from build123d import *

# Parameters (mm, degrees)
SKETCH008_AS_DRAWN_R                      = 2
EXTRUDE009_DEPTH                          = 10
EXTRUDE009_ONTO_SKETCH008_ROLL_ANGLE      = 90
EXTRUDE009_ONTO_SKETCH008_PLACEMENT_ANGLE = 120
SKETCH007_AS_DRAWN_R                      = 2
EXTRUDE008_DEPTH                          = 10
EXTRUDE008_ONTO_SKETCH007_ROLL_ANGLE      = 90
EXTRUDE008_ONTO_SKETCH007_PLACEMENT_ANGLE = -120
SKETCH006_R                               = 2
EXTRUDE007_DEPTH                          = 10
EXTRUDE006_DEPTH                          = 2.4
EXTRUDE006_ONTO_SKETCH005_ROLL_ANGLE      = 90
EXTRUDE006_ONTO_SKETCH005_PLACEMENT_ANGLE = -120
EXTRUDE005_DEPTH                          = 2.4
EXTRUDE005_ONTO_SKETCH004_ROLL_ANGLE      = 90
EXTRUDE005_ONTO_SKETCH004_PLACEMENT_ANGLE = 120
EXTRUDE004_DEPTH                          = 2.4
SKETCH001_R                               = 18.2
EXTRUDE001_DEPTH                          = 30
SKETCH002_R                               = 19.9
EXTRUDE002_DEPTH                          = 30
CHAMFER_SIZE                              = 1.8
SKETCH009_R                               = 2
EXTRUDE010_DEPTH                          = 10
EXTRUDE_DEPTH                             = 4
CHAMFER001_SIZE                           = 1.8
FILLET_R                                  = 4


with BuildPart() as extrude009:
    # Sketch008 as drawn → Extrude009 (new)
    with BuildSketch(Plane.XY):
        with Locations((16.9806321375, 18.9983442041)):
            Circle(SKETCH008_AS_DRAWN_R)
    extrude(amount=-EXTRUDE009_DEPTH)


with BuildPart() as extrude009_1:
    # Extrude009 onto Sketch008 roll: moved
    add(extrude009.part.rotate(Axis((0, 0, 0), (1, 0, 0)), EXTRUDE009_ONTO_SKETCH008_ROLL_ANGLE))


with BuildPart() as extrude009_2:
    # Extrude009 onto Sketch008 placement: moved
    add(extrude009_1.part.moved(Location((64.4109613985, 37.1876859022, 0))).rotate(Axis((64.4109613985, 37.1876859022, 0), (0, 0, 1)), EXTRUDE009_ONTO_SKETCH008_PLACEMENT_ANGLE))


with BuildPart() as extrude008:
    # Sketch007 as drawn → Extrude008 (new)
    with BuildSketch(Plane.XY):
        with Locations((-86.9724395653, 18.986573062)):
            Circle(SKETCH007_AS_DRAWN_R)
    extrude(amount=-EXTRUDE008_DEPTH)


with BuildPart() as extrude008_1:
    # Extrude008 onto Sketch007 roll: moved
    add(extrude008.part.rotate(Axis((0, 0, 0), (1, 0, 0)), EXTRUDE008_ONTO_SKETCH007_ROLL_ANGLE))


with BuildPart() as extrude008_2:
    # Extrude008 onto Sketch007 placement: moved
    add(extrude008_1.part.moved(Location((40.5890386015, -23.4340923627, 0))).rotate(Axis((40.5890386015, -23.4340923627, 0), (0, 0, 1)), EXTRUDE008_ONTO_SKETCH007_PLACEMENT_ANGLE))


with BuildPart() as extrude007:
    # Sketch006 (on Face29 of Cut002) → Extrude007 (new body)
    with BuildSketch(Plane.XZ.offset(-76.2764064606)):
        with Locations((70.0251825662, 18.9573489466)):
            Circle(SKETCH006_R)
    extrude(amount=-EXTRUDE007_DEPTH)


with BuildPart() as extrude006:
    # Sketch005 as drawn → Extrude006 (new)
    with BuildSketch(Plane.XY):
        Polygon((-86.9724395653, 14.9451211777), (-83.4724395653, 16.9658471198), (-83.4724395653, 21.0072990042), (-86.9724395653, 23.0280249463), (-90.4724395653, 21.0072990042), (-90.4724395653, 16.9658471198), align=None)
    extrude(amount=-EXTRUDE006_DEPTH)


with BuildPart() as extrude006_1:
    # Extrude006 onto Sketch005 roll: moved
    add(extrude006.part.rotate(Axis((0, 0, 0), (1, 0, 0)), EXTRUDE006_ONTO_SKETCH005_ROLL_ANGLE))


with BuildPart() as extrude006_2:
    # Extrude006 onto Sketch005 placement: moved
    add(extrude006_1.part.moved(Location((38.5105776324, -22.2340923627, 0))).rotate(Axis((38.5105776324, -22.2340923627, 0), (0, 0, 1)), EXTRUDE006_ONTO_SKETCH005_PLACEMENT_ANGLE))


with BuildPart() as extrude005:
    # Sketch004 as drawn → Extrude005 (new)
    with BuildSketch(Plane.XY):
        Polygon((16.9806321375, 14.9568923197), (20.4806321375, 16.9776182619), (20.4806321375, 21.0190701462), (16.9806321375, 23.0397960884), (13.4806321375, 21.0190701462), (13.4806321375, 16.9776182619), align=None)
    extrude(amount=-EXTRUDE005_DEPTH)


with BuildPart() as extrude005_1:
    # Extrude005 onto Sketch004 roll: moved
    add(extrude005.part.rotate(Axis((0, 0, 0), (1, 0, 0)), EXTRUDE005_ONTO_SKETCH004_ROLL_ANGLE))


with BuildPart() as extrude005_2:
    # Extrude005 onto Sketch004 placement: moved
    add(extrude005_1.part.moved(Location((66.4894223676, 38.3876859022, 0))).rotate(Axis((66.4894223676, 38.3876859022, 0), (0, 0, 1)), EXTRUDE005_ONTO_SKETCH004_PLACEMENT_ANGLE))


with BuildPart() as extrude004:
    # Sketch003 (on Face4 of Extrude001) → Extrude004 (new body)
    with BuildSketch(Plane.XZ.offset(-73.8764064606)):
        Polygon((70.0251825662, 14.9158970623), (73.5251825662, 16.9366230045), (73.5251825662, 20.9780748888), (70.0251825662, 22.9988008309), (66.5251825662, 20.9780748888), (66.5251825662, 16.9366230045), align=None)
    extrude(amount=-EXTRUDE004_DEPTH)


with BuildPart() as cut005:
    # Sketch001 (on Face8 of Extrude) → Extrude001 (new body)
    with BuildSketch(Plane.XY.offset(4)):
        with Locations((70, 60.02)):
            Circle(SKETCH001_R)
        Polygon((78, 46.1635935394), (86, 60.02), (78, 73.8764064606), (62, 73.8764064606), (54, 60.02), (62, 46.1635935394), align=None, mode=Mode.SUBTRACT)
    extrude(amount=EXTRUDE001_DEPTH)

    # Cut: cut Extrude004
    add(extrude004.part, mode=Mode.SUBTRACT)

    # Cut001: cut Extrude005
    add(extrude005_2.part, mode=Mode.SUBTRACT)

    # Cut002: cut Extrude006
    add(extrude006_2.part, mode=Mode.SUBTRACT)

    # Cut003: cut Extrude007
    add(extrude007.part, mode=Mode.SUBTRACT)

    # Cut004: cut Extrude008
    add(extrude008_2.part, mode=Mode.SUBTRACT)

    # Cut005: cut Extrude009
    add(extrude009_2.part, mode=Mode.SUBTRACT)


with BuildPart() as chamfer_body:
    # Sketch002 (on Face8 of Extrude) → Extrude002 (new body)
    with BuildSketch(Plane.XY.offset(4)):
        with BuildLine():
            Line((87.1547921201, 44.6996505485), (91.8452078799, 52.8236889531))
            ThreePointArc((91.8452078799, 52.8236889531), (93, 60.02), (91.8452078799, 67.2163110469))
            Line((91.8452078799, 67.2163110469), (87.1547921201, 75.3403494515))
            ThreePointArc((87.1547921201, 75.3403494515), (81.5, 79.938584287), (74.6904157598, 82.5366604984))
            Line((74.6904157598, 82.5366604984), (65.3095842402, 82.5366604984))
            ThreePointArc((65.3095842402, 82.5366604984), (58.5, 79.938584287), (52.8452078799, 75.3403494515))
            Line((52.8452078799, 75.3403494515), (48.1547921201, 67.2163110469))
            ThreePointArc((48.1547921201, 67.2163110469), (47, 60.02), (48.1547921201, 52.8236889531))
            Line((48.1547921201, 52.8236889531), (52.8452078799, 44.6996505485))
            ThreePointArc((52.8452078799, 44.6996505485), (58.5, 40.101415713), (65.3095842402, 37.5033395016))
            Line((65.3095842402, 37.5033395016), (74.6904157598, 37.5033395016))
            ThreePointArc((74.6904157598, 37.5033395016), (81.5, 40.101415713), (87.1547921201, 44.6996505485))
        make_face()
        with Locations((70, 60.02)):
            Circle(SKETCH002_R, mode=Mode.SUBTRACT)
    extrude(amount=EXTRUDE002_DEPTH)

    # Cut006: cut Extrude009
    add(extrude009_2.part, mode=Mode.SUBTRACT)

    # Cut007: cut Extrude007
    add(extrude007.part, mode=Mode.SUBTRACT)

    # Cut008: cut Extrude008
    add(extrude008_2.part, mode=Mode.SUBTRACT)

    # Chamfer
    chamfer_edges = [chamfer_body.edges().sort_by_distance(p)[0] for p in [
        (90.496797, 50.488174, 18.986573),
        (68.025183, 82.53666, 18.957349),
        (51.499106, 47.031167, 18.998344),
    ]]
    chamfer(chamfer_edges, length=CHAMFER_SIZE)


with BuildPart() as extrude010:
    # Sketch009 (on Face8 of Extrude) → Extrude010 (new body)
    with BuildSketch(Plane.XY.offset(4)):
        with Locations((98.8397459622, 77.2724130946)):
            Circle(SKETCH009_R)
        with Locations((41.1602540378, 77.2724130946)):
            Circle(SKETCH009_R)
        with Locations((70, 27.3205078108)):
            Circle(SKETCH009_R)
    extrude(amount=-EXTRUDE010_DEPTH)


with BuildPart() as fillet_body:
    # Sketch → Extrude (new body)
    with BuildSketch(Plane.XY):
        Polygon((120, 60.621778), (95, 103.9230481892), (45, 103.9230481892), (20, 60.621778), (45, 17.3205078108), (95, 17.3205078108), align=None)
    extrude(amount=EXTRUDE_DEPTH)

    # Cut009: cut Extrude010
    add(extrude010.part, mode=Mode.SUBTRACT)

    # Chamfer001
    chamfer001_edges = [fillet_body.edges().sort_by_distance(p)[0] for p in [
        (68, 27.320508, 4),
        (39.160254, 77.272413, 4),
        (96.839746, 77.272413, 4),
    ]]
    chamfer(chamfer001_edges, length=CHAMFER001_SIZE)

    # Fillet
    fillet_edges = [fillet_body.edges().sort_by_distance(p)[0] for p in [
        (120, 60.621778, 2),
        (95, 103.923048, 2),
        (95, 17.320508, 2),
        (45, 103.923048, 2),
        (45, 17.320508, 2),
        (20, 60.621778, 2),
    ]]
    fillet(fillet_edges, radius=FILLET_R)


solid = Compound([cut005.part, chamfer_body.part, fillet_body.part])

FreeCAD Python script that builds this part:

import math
import FreeCAD as App
import Part
import Sketcher

V = App.Vector
Q = App.Units.Quantity


def edges_at(feature, points):
    """Names of the edges that pass closest to the given points."""
    edges = feature.Shape.Edges
    near = lambda p: min(range(len(edges)), key=lambda i: edges[i].distToShape(Part.Vertex(*p))[0])
    return sorted({f"Edge{near(p) + 1}" for p in points})


def add_polygon(sketch, points):
    """Adds a closed chain of lines whose ends are joined by coincident constraints."""
    first, n = sketch.GeometryCount, len(points)
    for a, b in zip(points, points[1:] + points[:1]):
        sketch.addGeometry(Part.LineSegment(App.Vector(*a, 0), App.Vector(*b, 0)), False)
    for i in range(n):
        sketch.addConstraint(Sketcher.Constraint("Coincident", first + i, 2, first + (i + 1) % n, 1))

doc = App.newDocument("Part")
body = doc.addObject("PartDesign::Body", "Body")

sketch1 = body.newObject("Sketcher::SketchObject", "Sketch")
sketch1.AttachmentSupport = (doc.getObject("XY_Plane"), [""])
sketch1.MapMode = "FlatFace"
sketch1.addGeometry(Part.Circle(V(17, 19, 0), V(0, 0, 1), 2), False)
sketch1.addConstraint([
    Sketcher.Constraint("Diameter", 0, 4.0),
    Sketcher.Constraint("DistanceX", -1, 1, 0, 3, 16.980632),
    Sketcher.Constraint("DistanceY", -1, 1, 0, 3, 18.998344),
])
pad1 = body.newObject("PartDesign::Pad", "Pad")
pad1.Profile = sketch1
pad1.Length = 10
pad1.Reversed = True
body2 = doc.addObject("PartDesign::Body", "Body001")
doc.recompute()

body.Placement = App.Placement(V(0, 0, 0), App.Rotation(V(1, 0, 0), 90))
boolean = body2.newObject("PartDesign::Boolean", "Boolean")
boolean.Type = "Fuse"
boolean.addObjects([body])
body3 = doc.addObject("PartDesign::Body", "Body002")
doc.recompute()

body2.Placement = App.Placement(V(64.410961, 37.187686, 0), App.Rotation(V(0, 0, 1), 120))
boolean2 = body3.newObject("PartDesign::Boolean", "Boolean001")
boolean2.Type = "Fuse"
boolean2.addObjects([body2])
body4 = doc.addObject("PartDesign::Body", "Body003")

sketch2 = body4.newObject("Sketcher::SketchObject", "Sketch001")
sketch2.AttachmentSupport = (doc.getObject("XY_Plane003"), [""])
sketch2.MapMode = "FlatFace"
sketch2.addGeometry(Part.Circle(V(-87, 19, 0), V(0, 0, 1), 2), False)
sketch2.addConstraint([
    Sketcher.Constraint("Diameter", 0, 4.0),
    Sketcher.Constraint("DistanceX", 0, 3, -1, 1, 86.97244),
    Sketcher.Constraint("DistanceY", -1, 1, 0, 3, 18.986573),
])
pad2 = body4.newObject("PartDesign::Pad", "Pad001")
pad2.Profile = sketch2
pad2.Length = 10
pad2.Reversed = True
body5 = doc.addObject("PartDesign::Body", "Body004")
doc.recompute()

body4.Placement = App.Placement(V(0, 0, 0), App.Rotation(V(1, 0, 0), 90))
boolean3 = body5.newObject("PartDesign::Boolean", "Boolean002")
boolean3.Type = "Fuse"
boolean3.addObjects([body4])
body6 = doc.addObject("PartDesign::Body", "Body005")
doc.recompute()

body5.Placement = App.Placement(V(40.589039, -23.434092, 0), App.Rotation(V(0, 0, 1), 240))
boolean4 = body6.newObject("PartDesign::Boolean", "Boolean003")
boolean4.Type = "Fuse"
boolean4.addObjects([body5])
body7 = doc.addObject("PartDesign::Body", "Body006")

sketch3 = body7.newObject("Sketcher::SketchObject", "Sketch002")
sketch3.AttachmentSupport = (doc.getObject("XZ_Plane006"), [""])
sketch3.MapMode = "FlatFace"
sketch3.AttachmentOffset = App.Placement(V(0, 0, -76.276406), App.Rotation())
sketch3.addGeometry(Part.Circle(V(70, 19, 0), V(0, 0, 1), 2), False)
sketch3.addConstraint([
    Sketcher.Constraint("Diameter", 0, 4.0),
    Sketcher.Constraint("DistanceY", -1, 1, 0, 3, 18.957349),
    Sketcher.Constraint("DistanceX", -1, 1, 0, 3, 70.025183),
])
pad3 = body7.newObject("PartDesign::Pad", "Pad002")
pad3.Profile = sketch3
pad3.Length = 10
pad3.Reversed = True
body8 = doc.addObject("PartDesign::Body", "Body007")

sketch4 = body8.newObject("Sketcher::SketchObject", "Sketch003")
sketch4.AttachmentSupport = (doc.getObject("XY_Plane007"), [""])
sketch4.MapMode = "FlatFace"
add_polygon(sketch4, [(-87, 14.9), (-83.5, 17), (-83.5, 21), (-87, 23), (-90.5, 21), (-90.5, 17)])
sketch4.addConstraint([
    Sketcher.Constraint("Vertical", 1),
    Sketcher.Constraint("Vertical", 4),
    Sketcher.Constraint("Parallel", 0, 3),
    Sketcher.Constraint("Parallel", 2, 5),
    Sketcher.Constraint("Horizontal", 1, 2, 3, 2),
    Sketcher.Constraint("Horizontal", 0, 2, 4, 2),
    Sketcher.Constraint("Vertical", 2, 2, 5, 2),
    Sketcher.Constraint("Angle", 0, Q("30 deg")),
    Sketcher.Constraint("DistanceX", 3, 2, 1, 2, 7.0),
    Sketcher.Constraint("DistanceY", 1, 1, 1, 2, 4.041452),
    Sketcher.Constraint("DistanceY", -1, 1, 1, 2, 21.007299),
    Sketcher.Constraint("DistanceX", 0, 2, -1, 1, 83.47244),
])
pad4 = body8.newObject("PartDesign::Pad", "Pad003")
pad4.Profile = sketch4
pad4.Length = 2.4
pad4.Reversed = True
body9 = doc.addObject("PartDesign::Body", "Body008")
doc.recompute()

body8.Placement = App.Placement(V(0, 0, 0), App.Rotation(V(1, 0, 0), 90))
boolean5 = body9.newObject("PartDesign::Boolean", "Boolean004")
boolean5.Type = "Fuse"
boolean5.addObjects([body8])
body10 = doc.addObject("PartDesign::Body", "Body009")
doc.recompute()

body9.Placement = App.Placement(V(38.510578, -22.234092, 0), App.Rotation(V(0, 0, 1), 240))
boolean6 = body10.newObject("PartDesign::Boolean", "Boolean005")
boolean6.Type = "Fuse"
boolean6.addObjects([body9])
body11 = doc.addObject("PartDesign::Body", "Body010")

sketch5 = body11.newObject("Sketcher::SketchObject", "Sketch004")
sketch5.AttachmentSupport = (doc.getObject("XY_Plane010"), [""])
sketch5.MapMode = "FlatFace"
add_polygon(sketch5, [(17, 15), (20.5, 17), (20.5, 21), (17, 23), (13.5, 21), (13.5, 17)])
sketch5.addConstraint([
    Sketcher.Constraint("Vertical", 1),
    Sketcher.Constraint("Vertical", 4),
    Sketcher.Constraint("Parallel", 0, 3),
    Sketcher.Constraint("Parallel", 2, 5),
    Sketcher.Constraint("Horizontal", 1, 2, 3, 2),
    Sketcher.Constraint("Horizontal", 0, 2, 4, 2),
    Sketcher.Constraint("Vertical", 2, 2, 5, 2),
    Sketcher.Constraint("Angle", 0, Q("30 deg")),
    Sketcher.Constraint("DistanceX", 3, 2, 1, 2, 7.0),
    Sketcher.Constraint("DistanceY", 1, 1, 1, 2, 4.041452),
    Sketcher.Constraint("DistanceY", -1, 1, 0, 2, 16.977618),
    Sketcher.Constraint("DistanceX", -1, 1, 0, 2, 20.480632),
])
pad5 = body11.newObject("PartDesign::Pad", "Pad004")
pad5.Profile = sketch5
pad5.Length = 2.4
pad5.Reversed = True
body12 = doc.addObject("PartDesign::Body", "Body011")
doc.recompute()

body11.Placement = App.Placement(V(0, 0, 0), App.Rotation(V(1, 0, 0), 90))
boolean7 = body12.newObject("PartDesign::Boolean", "Boolean006")
boolean7.Type = "Fuse"
boolean7.addObjects([body11])
body13 = doc.addObject("PartDesign::Body", "Body012")
doc.recompute()

body12.Placement = App.Placement(V(66.489422, 38.387686, 0), App.Rotation(V(0, 0, 1), 120))
boolean8 = body13.newObject("PartDesign::Boolean", "Boolean007")
boolean8.Type = "Fuse"
boolean8.addObjects([body12])
body14 = doc.addObject("PartDesign::Body", "Body013")

sketch6 = body14.newObject("Sketcher::SketchObject", "Sketch005")
sketch6.AttachmentSupport = (doc.getObject("XZ_Plane013"), [""])
sketch6.MapMode = "FlatFace"
sketch6.AttachmentOffset = App.Placement(V(0, 0, -73.876406), App.Rotation())
add_polygon(sketch6, [(70, 14.9), (73.5, 16.9), (73.5, 21), (70, 23), (66.5, 21), (66.5, 16.9)])
sketch6.addConstraint([
    Sketcher.Constraint("Vertical", 1),
    Sketcher.Constraint("Vertical", 4),
    Sketcher.Constraint("Parallel", 0, 3),
    Sketcher.Constraint("Parallel", 2, 5),
    Sketcher.Constraint("Horizontal", 1, 2, 3, 2),
    Sketcher.Constraint("Horizontal", 0, 2, 4, 2),
    Sketcher.Constraint("Vertical", 2, 2, 5, 2),
    Sketcher.Constraint("Angle", 0, Q("30 deg")),
    Sketcher.Constraint("DistanceX", 3, 2, 1, 2, 7.0),
    Sketcher.Constraint("DistanceY", 1, 1, 1, 2, 4.041452),
    Sketcher.Constraint("DistanceY", -1, 1, 2, 2, 22.998801),
    Sketcher.Constraint("DistanceX", -1, 1, 0, 2, 73.525183),
])
pad6 = body14.newObject("PartDesign::Pad", "Pad005")
pad6.Profile = sketch6
pad6.Length = 2.4
pad6.Reversed = True
body15 = doc.addObject("PartDesign::Body", "Body014")

sketch7 = body15.newObject("Sketcher::SketchObject", "Sketch006")
sketch7.AttachmentSupport = (doc.getObject("XY_Plane014"), [""])
sketch7.MapMode = "FlatFace"
sketch7.AttachmentOffset = App.Placement(V(0, 0, 4), App.Rotation())
sketch7.addGeometry(Part.Circle(V(70, 60, 0), V(0, 0, 1), 18), False)
add_polygon(sketch7, [(86, 60), (78, 46), (62, 46), (54, 60), (62, 74), (78, 74)])
sketch7.addConstraint([
    Sketcher.Constraint("Horizontal", 2),
    Sketcher.Constraint("Horizontal", 5),
    Sketcher.Constraint("Parallel", 1, 4),
    Sketcher.Constraint("Parallel", 3, 6),
    Sketcher.Constraint("Horizontal", 0, 3, 3, 2),
    Sketcher.Constraint("Horizontal", 3, 2, 6, 2),
    Sketcher.Constraint("Vertical", 2, 2, 4, 2),
    Sketcher.Constraint("Vertical", 1, 2, 5, 2),
    Sketcher.Constraint("Diameter", 0, 36.4),
    Sketcher.Constraint("DistanceX", 2, 2, 2, 1, 16.0),
    Sketcher.Constraint("Angle", 1, Q("-120 deg")),
    Sketcher.Constraint("Distance", 1, 16.0),
    Sketcher.Constraint("DistanceX", -1, 1, 0, 3, 70.0),
    Sketcher.Constraint("DistanceX", -1, 1, 1, 2, 78.0),
    Sketcher.Constraint("DistanceY", -1, 1, 0, 3, 60.02),
])
pad7 = body15.newObject("PartDesign::Pad", "Pad006")
pad7.Profile = sketch7
pad7.Length = 30
doc.recompute()

boolean9 = body15.newObject("PartDesign::Boolean", "Boolean008")
boolean9.Type = "Cut"
boolean9.addObjects([body14])
doc.recompute()

boolean10 = body15.newObject("PartDesign::Boolean", "Boolean009")
boolean10.Type = "Cut"
boolean10.addObjects([body13])
doc.recompute()

boolean11 = body15.newObject("PartDesign::Boolean", "Boolean010")
boolean11.Type = "Cut"
boolean11.addObjects([body10])
doc.recompute()

body16 = doc.addObject("PartDesign::Body", "Body015")
body16.BaseFeature = body7
boolean12 = body15.newObject("PartDesign::Boolean", "Boolean011")
boolean12.Type = "Cut"
boolean12.addObjects([body16])
doc.recompute()

body17 = doc.addObject("PartDesign::Body", "Body016")
body17.BaseFeature = body6
boolean13 = body15.newObject("PartDesign::Boolean", "Boolean012")
boolean13.Type = "Cut"
boolean13.addObjects([body17])
doc.recompute()

body18 = doc.addObject("PartDesign::Body", "Body017")
body18.BaseFeature = body3
boolean14 = body15.newObject("PartDesign::Boolean", "Boolean013")
boolean14.Type = "Cut"
boolean14.addObjects([body18])
doc.recompute()
body19 = doc.addObject("PartDesign::Body", "Body018")

sketch8 = body19.newObject("Sketcher::SketchObject", "Sketch007")
sketch8.AttachmentSupport = (doc.getObject("XY_Plane018"), [""])
sketch8.MapMode = "FlatFace"
sketch8.AttachmentOffset = App.Placement(V(0, 0, 4), App.Rotation())
sketch8.addGeometry([
    Part.LineSegment(V(87, 45, 0), V(92, 53, 0)),
    Part.ArcOfCircle(Part.Circle(V(70, 60, 0), V(0, 0, 1), 23), math.radians(-18), math.radians(18)),
    Part.LineSegment(V(92, 67, 0), V(87, 75, 0)),
    Part.ArcOfCircle(Part.Circle(V(70, 60, 0), V(0, 0, 1), 23), math.radians(42), math.radians(78)),
    Part.LineSegment(V(75, 83, 0), V(65, 83, 0)),
    Part.ArcOfCircle(Part.Circle(V(70, 60, 0), V(0, 0, 1), 23), math.radians(102), math.radians(138)),
    Part.LineSegment(V(53, 75, 0), V(48, 67, 0)),
    Part.ArcOfCircle(Part.Circle(V(70, 60, 0), V(0, 0, 1), 23), math.radians(162), math.radians(198)),
    Part.LineSegment(V(48, 53, 0), V(53, 45, 0)),
    Part.ArcOfCircle(Part.Circle(V(70, 60, 0), V(0, 0, 1), 23), math.radians(-138), math.radians(-102)),
    Part.LineSegment(V(65, 38, 0), V(75, 38, 0)),
    Part.ArcOfCircle(Part.Circle(V(70, 60, 0), V(0, 0, 1), 23), math.radians(-78), math.radians(-42)),
    Part.Circle(V(70, 60, 0), V(0, 0, 1), 20),
], False)
sketch8.addConstraint([
    Sketcher.Constraint("Coincident", 0, 2, 1, 1),
    Sketcher.Constraint("Coincident", 1, 2, 2, 1),
    Sketcher.Constraint("Coincident", 2, 2, 3, 1),
    Sketcher.Constraint("Coincident", 3, 2, 4, 1),
    Sketcher.Constraint("Coincident", 4, 2, 5, 1),
    Sketcher.Constraint("Coincident", 5, 2, 6, 1),
    Sketcher.Constraint("Coincident", 6, 2, 7, 1),
    Sketcher.Constraint("Coincident", 7, 2, 8, 1),
    Sketcher.Constraint("Coincident", 8, 2, 9, 1),
    Sketcher.Constraint("Coincident", 9, 2, 10, 1),
    Sketcher.Constraint("Coincident", 10, 2, 11, 1),
    Sketcher.Constraint("Coincident", 11, 2, 0, 1),
    Sketcher.Constraint("Horizontal", 4),
    Sketcher.Constraint("Horizontal", 10),
    Sketcher.Constraint("Coincident", 3, 3, 1, 3),
    Sketcher.Constraint("Coincident", 5, 3, 1, 3),
    Sketcher.Constraint("Coincident", 7, 3, 1, 3),
    Sketcher.Constraint("Coincident", 9, 3, 1, 3),
    Sketcher.Constraint("Coincident", 11, 3, 1, 3),
    Sketcher.Constraint("Coincident", 12, 3, 1, 3),
    Sketcher.Constraint("Equal", 1, 3),
    Sketcher.Constraint("Equal", 3, 5),
    Sketcher.Constraint("Equal", 5, 7),
    Sketcher.Constraint("Equal", 7, 9),
    Sketcher.Constraint("Equal", 9, 11),
    Sketcher.Constraint("Parallel", 0, 6),
    Sketcher.Constraint("Parallel", 2, 8),
    Sketcher.Constraint("Horizontal", 2, 2, 5, 2),
    Sketcher.Constraint("Horizontal", 1, 2, 6, 2),
    Sketcher.Constraint("Horizontal", 0, 2, 7, 2),
    Sketcher.Constraint("Vertical", 0, 2, 1, 2),
    Sketcher.Constraint("Vertical", 4, 2, 9, 2),
    Sketcher.Constraint("Radius", 1, 23.0),
    Sketcher.Constraint("Diameter", 12, 39.8),
    Sketcher.Constraint("Angle", 0, Q("60 deg")),
    Sketcher.Constraint("DistanceX", -1, 1, 1, 3, 70.0),
    Sketcher.Constraint("DistanceY", -1, 1, 1, 3, 60.02),
    Sketcher.Constraint("DistanceX", 4, 2, 4, 1, 9.380832),
    Sketcher.Constraint("Distance", 0, 9.380832),
])
pad8 = body19.newObject("PartDesign::Pad", "Pad007")
pad8.Profile = sketch8
pad8.Length = 30
doc.recompute()

boolean15 = body19.newObject("PartDesign::Boolean", "Boolean014")
boolean15.Type = "Cut"
boolean15.addObjects([body3])
doc.recompute()

boolean16 = body19.newObject("PartDesign::Boolean", "Boolean015")
boolean16.Type = "Cut"
boolean16.addObjects([body7])
doc.recompute()

boolean17 = body19.newObject("PartDesign::Boolean", "Boolean016")
boolean17.Type = "Cut"
boolean17.addObjects([body6])
doc.recompute()

chamfer = body19.newObject("PartDesign::Chamfer", "Chamfer")
chamfer.Base = (boolean17, edges_at(boolean17, [(90.497, 50.488, 18.987), (68.025, 82.537, 18.957), (51.499, 47.031, 18.998)]))
chamfer.Size = 1.8
body20 = doc.addObject("PartDesign::Body", "Body019")
body20.AllowCompound = True

sketch9 = body20.newObject("Sketcher::SketchObject", "Sketch008")
sketch9.AttachmentSupport = (doc.getObject("XY_Plane019"), [""])
sketch9.MapMode = "FlatFace"
sketch9.AttachmentOffset = App.Placement(V(0, 0, 4), App.Rotation())
sketch9.addGeometry([
    Part.Circle(V(98.8, 77.3, 0), V(0, 0, 1), 2),
    Part.Circle(V(41.2, 77.3, 0), V(0, 0, 1), 2),
    Part.Circle(V(70, 27.3, 0), V(0, 0, 1), 2),
], False)
sketch9.addConstraint([
    Sketcher.Constraint("Equal", 0, 1),
    Sketcher.Constraint("Equal", 1, 2),
    Sketcher.Constraint("Horizontal", 0, 3, 1, 3),
    Sketcher.Constraint("Diameter", 0, 4.0),
    Sketcher.Constraint("DistanceX", -1, 1, 2, 3, 70.0),
    Sketcher.Constraint("DistanceX", 1, 3, 0, 3, 57.679492),
    Sketcher.Constraint("DistanceX", -1, 1, 0, 3, 98.839746),
    Sketcher.Constraint("DistanceY", -1, 1, 0, 3, 77.272413),
    Sketcher.Constraint("DistanceY", -1, 1, 2, 3, 27.320508),
])
pad9 = body20.newObject("PartDesign::Pad", "Pad008")
pad9.Profile = sketch9
pad9.Length = 10
pad9.Reversed = True
body21 = doc.addObject("PartDesign::Body", "Body020")

sketch10 = body21.newObject("Sketcher::SketchObject", "Sketch009")
sketch10.AttachmentSupport = (doc.getObject("XY_Plane020"), [""])
sketch10.MapMode = "FlatFace"
add_polygon(sketch10, [(120, 61), (95, 104), (45, 104), (20, 61), (45, 17), (95, 17)])
sketch10.addConstraint([
    Sketcher.Constraint("Horizontal", 1),
    Sketcher.Constraint("Horizontal", 4),
    Sketcher.Constraint("Parallel", 0, 3),
    Sketcher.Constraint("Parallel", 2, 5),
    Sketcher.Constraint("Horizontal", 2, 2, 5, 2),
    Sketcher.Constraint("Vertical", 1, 2, 3, 2),
    Sketcher.Constraint("Vertical", 0, 2, 4, 2),
    Sketcher.Constraint("DistanceX", 1, 2, 1, 1, 50.0),
    Sketcher.Constraint("Angle", 0, Q("120 deg")),
    Sketcher.Constraint("Distance", 0, 50.0),
    Sketcher.Constraint("DistanceX", -1, 1, 0, 2, 95.0),
    Sketcher.Constraint("DistanceY", -1, 1, 0, 2, 103.923048),
])
pad10 = body21.newObject("PartDesign::Pad", "Pad009")
pad10.Profile = sketch10
pad10.Length = 4
doc.recompute()

boolean18 = body21.newObject("PartDesign::Boolean", "Boolean017")
boolean18.Type = "Cut"
boolean18.addObjects([body20])
doc.recompute()

chamfer2 = body21.newObject("PartDesign::Chamfer", "Chamfer001")
chamfer2.Base = (boolean18, edges_at(boolean18, [(68, 27.321, 4), (39.16, 77.272, 4), (96.84, 77.272, 4)]))
chamfer2.Size = 1.8
doc.recompute()

fillet = body21.newObject("PartDesign::Fillet", "Fillet")
fillet.Base = (chamfer2, edges_at(chamfer2, [
    (120, 60.622, 2),
    (95, 103.923, 2),
    (95, 17.321, 2),
    (45, 103.923, 2),
    (45, 17.321, 2),
    (20, 60.622, 2),
]))
fillet.Radius = 4

doc.recompute()
